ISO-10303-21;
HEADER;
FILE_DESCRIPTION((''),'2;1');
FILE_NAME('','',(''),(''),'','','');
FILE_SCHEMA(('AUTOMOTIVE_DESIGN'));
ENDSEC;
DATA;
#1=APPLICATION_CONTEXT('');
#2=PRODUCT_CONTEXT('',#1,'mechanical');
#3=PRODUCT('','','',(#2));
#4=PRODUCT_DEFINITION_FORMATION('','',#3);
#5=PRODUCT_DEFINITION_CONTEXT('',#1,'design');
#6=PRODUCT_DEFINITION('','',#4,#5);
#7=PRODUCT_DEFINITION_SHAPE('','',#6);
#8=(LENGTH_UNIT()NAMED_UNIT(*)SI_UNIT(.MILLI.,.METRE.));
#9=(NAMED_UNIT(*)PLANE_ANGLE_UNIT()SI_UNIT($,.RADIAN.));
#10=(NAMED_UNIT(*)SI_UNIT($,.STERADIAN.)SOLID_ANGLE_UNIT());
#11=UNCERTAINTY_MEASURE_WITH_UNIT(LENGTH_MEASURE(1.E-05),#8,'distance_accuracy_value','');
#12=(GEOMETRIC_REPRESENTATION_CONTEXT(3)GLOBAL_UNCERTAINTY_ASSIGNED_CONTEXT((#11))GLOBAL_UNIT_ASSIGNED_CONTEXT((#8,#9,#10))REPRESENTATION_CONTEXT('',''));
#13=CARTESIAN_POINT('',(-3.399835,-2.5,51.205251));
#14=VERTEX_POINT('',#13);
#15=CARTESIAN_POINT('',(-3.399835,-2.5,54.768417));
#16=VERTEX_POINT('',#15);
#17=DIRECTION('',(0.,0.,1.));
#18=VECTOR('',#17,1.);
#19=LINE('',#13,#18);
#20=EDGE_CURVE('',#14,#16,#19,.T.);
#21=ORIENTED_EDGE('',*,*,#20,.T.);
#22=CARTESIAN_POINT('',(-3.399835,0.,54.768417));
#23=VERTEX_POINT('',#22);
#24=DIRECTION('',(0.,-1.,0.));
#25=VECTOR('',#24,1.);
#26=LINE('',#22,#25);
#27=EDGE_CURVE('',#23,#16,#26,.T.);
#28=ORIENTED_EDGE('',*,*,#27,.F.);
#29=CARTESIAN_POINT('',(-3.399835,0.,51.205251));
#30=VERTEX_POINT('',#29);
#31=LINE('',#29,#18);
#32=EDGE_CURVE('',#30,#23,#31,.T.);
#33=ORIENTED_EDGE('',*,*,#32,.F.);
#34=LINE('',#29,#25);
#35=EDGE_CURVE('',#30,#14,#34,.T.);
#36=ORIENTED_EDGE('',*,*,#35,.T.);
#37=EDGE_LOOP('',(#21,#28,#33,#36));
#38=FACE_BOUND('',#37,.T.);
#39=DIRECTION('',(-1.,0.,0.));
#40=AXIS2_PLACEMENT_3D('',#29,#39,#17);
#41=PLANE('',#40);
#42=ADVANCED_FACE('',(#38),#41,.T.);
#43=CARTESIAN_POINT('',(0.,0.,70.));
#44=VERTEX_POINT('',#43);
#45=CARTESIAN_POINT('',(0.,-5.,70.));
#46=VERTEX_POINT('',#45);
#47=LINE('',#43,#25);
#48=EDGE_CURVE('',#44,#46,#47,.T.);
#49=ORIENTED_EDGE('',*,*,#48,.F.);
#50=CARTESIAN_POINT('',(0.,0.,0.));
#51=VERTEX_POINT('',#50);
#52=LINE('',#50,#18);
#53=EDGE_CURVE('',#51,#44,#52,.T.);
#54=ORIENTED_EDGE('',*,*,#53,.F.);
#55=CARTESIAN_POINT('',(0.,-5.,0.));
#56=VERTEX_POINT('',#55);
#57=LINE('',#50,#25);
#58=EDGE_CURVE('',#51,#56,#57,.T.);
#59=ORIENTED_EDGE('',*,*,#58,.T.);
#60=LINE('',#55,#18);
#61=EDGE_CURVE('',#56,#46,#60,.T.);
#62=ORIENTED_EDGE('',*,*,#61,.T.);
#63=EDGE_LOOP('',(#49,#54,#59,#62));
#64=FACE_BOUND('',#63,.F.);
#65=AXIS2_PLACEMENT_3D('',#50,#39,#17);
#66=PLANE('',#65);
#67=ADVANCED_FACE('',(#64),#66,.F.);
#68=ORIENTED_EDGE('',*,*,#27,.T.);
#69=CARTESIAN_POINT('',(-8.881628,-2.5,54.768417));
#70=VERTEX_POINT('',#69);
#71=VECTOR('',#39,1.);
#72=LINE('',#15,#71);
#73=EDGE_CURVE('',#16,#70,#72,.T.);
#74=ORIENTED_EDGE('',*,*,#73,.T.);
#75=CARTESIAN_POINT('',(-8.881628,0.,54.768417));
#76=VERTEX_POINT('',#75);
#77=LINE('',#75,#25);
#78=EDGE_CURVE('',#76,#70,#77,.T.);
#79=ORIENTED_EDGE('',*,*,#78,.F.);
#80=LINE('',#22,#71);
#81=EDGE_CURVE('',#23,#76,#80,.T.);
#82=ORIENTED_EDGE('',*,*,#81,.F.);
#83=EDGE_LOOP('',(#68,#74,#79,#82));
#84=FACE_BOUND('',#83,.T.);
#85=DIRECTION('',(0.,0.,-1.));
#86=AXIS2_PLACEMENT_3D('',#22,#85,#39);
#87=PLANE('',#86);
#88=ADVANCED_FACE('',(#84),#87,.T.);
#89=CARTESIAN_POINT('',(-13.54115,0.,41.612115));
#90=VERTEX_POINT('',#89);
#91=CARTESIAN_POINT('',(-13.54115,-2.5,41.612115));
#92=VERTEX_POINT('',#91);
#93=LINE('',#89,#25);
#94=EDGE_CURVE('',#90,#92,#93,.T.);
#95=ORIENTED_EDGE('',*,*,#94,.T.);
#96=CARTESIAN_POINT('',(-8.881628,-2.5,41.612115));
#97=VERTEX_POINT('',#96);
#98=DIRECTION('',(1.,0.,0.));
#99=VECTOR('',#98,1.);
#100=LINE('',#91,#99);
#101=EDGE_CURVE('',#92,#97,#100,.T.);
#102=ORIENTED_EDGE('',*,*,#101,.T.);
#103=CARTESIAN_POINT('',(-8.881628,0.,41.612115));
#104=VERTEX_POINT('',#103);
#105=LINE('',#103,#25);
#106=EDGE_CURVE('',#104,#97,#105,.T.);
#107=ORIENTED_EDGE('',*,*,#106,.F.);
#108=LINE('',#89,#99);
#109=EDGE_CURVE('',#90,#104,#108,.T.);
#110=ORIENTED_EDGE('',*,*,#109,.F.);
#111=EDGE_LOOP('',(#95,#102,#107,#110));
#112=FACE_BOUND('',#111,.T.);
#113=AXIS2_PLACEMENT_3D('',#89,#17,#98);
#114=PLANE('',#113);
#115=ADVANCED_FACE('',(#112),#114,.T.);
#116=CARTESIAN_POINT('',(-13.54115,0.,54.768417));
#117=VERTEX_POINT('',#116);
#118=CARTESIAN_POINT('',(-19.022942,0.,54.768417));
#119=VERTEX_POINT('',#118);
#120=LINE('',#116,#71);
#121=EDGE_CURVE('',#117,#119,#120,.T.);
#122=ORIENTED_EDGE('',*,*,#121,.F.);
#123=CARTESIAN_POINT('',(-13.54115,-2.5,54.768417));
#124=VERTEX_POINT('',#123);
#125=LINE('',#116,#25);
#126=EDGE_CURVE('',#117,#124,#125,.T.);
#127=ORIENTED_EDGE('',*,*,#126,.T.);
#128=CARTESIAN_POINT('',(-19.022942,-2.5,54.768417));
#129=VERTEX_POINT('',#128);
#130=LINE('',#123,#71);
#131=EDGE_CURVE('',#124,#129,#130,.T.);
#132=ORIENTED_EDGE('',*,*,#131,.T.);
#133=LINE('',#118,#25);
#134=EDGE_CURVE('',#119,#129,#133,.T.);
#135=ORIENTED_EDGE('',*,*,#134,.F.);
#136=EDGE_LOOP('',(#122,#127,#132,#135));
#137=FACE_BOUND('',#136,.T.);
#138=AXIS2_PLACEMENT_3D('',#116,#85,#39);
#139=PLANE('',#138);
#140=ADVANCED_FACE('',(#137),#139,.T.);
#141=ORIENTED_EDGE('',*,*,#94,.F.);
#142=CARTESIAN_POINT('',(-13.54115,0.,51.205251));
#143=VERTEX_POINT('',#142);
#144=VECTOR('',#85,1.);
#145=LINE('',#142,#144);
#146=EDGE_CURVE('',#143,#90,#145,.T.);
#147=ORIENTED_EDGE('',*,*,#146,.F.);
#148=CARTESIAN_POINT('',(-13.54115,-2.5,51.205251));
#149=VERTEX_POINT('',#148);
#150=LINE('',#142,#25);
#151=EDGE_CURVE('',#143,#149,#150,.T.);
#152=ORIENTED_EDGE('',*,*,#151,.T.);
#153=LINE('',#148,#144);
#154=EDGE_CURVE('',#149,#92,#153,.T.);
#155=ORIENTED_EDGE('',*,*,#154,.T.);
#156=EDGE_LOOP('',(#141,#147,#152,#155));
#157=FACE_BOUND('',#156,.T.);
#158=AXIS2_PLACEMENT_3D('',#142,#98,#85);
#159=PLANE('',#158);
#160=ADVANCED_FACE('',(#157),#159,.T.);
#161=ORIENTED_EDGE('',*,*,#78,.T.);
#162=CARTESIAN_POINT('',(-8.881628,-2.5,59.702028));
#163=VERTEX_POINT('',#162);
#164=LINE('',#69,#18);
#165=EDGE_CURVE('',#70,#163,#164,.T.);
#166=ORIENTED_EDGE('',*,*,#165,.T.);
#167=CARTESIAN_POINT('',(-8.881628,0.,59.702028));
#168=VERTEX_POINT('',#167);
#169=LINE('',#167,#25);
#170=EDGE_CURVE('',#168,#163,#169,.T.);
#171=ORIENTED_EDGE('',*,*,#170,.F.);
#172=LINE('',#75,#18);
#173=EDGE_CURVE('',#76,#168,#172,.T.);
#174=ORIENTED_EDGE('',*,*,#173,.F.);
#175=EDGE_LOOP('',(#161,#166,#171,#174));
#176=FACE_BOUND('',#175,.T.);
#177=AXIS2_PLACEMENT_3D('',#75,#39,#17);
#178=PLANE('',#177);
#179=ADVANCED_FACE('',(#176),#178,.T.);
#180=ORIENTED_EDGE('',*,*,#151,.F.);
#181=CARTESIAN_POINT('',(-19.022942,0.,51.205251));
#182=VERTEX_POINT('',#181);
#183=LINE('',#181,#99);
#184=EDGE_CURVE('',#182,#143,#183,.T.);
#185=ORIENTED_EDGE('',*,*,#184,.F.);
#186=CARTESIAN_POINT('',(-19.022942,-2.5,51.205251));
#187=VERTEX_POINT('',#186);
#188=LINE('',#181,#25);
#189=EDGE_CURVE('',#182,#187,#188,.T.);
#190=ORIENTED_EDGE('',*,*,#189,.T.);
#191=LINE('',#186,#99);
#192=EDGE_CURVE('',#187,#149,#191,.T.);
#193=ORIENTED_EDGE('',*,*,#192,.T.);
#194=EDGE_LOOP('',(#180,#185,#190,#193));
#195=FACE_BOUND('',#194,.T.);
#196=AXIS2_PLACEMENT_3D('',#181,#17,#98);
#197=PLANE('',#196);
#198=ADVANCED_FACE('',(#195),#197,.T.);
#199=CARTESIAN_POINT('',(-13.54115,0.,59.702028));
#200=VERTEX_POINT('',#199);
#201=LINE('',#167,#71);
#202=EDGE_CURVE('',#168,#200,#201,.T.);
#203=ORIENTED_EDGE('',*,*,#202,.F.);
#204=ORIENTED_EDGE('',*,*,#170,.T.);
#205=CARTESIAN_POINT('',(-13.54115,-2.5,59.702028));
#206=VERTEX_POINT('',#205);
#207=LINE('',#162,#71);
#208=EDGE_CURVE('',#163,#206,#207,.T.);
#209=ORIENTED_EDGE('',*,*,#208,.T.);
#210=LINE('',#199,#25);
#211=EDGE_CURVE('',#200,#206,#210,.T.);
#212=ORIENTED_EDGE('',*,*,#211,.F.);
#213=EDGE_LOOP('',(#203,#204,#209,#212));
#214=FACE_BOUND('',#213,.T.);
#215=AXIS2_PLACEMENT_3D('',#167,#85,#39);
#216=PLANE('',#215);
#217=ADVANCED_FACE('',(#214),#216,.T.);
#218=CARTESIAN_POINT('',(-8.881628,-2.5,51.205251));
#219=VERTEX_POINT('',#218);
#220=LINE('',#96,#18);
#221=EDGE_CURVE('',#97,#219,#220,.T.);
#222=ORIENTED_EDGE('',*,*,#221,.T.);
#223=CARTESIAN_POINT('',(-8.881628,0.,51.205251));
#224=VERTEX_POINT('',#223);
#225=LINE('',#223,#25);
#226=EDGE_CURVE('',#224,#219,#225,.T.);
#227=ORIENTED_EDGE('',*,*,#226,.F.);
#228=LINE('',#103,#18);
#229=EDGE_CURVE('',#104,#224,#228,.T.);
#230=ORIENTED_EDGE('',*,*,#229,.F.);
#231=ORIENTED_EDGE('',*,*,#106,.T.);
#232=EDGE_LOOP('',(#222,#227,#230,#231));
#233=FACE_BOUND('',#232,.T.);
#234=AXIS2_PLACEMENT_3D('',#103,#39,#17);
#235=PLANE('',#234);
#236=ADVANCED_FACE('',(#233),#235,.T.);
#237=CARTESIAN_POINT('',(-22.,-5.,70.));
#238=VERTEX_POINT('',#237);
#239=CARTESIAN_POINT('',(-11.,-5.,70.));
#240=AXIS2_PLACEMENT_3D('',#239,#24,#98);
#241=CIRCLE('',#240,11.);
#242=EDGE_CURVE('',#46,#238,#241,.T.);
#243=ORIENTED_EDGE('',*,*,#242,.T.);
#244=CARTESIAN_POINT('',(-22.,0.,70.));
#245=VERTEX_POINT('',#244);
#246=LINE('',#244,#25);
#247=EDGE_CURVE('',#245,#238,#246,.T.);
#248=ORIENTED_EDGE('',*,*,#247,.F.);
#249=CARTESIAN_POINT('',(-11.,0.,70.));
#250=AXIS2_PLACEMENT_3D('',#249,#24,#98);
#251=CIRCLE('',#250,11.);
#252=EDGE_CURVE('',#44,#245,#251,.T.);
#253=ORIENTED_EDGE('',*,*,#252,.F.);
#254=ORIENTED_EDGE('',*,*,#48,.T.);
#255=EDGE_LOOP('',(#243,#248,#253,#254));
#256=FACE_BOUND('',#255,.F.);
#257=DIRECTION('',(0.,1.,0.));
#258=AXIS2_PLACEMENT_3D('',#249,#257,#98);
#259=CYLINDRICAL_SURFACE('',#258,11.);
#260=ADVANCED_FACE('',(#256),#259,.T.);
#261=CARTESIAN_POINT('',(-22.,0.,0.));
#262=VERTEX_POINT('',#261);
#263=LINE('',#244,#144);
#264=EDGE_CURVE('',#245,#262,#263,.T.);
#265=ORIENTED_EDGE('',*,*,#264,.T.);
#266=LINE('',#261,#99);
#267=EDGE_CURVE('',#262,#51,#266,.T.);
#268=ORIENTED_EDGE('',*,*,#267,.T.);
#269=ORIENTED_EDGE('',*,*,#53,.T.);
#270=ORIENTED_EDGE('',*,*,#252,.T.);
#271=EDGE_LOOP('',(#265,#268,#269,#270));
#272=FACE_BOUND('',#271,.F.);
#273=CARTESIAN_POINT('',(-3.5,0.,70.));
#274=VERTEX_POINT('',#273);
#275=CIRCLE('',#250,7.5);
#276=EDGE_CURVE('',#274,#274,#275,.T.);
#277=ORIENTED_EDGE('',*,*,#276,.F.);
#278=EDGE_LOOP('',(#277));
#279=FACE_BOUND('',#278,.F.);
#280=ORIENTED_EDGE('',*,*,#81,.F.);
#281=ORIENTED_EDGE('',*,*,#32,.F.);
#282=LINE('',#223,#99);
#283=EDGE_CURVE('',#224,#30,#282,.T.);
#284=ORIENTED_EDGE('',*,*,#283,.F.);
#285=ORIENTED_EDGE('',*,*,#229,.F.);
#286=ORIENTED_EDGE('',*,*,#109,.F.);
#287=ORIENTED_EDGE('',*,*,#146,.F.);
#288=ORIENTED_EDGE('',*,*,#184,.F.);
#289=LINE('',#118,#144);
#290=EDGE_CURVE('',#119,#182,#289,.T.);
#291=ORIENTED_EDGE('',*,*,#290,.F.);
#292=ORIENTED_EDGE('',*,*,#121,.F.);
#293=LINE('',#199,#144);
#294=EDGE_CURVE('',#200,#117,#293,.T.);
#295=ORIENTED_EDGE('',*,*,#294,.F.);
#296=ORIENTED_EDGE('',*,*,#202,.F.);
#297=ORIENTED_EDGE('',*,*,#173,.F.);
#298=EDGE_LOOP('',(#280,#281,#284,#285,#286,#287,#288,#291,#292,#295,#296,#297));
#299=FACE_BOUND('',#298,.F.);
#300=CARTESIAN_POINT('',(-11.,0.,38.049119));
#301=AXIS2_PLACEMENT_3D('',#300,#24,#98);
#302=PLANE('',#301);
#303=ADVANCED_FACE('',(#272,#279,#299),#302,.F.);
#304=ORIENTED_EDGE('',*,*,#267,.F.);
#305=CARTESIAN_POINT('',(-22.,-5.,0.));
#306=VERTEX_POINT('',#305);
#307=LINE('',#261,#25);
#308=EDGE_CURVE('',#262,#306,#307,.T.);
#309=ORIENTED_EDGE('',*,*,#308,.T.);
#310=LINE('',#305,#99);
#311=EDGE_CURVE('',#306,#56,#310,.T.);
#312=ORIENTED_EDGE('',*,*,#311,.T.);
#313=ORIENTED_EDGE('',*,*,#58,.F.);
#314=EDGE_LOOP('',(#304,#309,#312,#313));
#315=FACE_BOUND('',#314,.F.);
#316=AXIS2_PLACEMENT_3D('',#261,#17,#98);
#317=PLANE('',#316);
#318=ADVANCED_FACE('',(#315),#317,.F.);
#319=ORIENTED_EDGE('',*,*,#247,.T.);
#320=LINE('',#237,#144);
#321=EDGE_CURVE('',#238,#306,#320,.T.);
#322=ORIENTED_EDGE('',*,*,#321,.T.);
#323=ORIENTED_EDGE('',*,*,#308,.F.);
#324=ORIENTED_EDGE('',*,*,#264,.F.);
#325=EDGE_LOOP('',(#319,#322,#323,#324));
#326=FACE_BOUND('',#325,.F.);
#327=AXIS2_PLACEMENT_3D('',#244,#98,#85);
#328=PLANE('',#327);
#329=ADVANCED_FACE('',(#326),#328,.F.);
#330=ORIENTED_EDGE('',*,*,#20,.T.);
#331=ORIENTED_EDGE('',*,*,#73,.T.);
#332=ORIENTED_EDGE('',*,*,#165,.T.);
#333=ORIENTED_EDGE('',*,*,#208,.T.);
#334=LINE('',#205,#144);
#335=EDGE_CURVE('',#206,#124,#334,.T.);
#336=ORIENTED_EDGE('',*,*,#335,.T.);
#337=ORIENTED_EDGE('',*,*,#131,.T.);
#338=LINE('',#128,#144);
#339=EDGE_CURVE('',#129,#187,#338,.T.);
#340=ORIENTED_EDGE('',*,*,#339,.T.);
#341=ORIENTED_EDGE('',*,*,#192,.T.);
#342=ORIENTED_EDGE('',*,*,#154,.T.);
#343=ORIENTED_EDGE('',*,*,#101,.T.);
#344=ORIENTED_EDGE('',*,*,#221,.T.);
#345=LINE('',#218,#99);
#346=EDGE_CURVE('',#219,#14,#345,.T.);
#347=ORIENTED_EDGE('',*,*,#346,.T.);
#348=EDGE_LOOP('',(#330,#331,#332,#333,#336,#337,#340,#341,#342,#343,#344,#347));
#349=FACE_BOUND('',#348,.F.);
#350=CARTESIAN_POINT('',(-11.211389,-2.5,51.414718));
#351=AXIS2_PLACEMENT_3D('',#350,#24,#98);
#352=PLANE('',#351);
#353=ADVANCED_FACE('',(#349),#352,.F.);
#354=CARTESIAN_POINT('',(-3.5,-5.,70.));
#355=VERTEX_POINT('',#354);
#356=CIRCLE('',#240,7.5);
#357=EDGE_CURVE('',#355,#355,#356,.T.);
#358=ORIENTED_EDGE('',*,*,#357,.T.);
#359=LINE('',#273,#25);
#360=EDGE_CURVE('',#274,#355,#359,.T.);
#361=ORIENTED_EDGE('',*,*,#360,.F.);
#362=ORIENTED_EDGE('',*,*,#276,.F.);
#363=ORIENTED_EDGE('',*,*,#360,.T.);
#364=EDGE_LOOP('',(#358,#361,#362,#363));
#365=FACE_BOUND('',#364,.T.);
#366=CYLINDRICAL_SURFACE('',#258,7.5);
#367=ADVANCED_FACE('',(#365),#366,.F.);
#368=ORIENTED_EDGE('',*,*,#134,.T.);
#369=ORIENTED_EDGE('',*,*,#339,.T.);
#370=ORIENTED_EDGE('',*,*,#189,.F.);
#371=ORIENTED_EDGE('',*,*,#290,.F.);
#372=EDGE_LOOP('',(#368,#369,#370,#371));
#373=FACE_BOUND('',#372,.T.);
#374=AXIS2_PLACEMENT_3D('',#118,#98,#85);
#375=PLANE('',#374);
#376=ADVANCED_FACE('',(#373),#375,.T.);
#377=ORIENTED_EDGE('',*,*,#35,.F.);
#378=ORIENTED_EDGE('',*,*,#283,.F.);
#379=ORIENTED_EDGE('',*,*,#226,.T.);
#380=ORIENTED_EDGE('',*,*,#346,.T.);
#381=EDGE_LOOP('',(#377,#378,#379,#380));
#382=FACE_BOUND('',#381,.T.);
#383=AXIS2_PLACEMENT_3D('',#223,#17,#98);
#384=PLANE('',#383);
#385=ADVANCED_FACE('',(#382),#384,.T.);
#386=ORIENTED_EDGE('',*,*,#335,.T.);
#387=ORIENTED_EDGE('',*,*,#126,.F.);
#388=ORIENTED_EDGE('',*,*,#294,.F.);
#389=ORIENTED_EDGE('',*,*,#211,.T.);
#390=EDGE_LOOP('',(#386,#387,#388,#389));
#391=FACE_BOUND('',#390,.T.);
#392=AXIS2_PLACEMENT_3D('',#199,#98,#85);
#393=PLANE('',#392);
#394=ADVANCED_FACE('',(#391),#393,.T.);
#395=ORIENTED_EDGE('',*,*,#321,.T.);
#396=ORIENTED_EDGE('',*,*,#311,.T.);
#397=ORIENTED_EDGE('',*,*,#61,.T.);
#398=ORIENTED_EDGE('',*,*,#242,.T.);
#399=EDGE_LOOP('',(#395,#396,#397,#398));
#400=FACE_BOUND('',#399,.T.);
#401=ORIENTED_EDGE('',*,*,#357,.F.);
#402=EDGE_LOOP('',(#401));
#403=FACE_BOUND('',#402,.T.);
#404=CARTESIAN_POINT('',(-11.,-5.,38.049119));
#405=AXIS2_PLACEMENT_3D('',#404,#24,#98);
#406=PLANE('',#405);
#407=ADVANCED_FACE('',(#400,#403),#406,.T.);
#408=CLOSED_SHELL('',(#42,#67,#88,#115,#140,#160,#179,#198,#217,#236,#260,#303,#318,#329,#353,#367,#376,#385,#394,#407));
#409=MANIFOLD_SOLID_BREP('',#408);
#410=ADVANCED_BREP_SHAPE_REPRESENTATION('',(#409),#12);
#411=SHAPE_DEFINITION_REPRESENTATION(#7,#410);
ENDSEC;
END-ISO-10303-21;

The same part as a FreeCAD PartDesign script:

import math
import FreeCAD as App
import Part
import Sketcher
from FreeCAD import Vector

doc = App.newDocument("Part")
body = doc.addObject("PartDesign::Body", "Body")

sketch1 = body.newObject("Sketcher::SketchObject", "Sketch")
sketch1.AttachmentSupport = (doc.getObject("XZ_Plane"), [""])
sketch1.MapMode = "FlatFace"
sketch1.addGeometry([
    Part.LineSegment(Vector(-22, 70, 0), Vector(-22, 0, 0)),
    Part.LineSegment(Vector(-22, 0, 0), Vector(0, 0, 0)),
    Part.LineSegment(Vector(0, 0, 0), Vector(0, 70, 0)),
    Part.ArcOfCircle(Part.Circle(Vector(-11, 70, 0), Vector(0, 0, 1), 11), math.radians(0), math.radians(180)),
    Part.Circle(Vector(-11, 70, 0), Vector(0, 0, 1), 8),
], False)
sketch1.addConstraint([
    Sketcher.Constraint("Coincident", 0, 2, 1, 1),
    Sketcher.Constraint("Coincident", 1, 2, 2, 1),
    Sketcher.Constraint("Tangent", 2, 2, 3, 1),
    Sketcher.Constraint("Tangent", 3, 2, 0, 1),
    Sketcher.Constraint("Vertical", 0),
    Sketcher.Constraint("Horizontal", 1),
    Sketcher.Constraint("Vertical", 2),
    Sketcher.Constraint("Coincident", 1, 2, -1, 1),
    Sketcher.Constraint("Coincident", 4, 3, 3, 3),
    Sketcher.Constraint("Diameter", 4, 15.0),
    Sketcher.Constraint("Radius", 3, 11.0),
    Sketcher.Constraint("DistanceY", 0, 2, 0, 1, 70.0),
])
pad1 = body.newObject("PartDesign::Pad", "Pad")
pad1.Profile = sketch1
pad1.Length = 5

sketch2 = body.newObject("Sketcher::SketchObject", "Sketch001")
sketch2.AttachmentSupport = (doc.getObject("XZ_Plane"), [""])
sketch2.MapMode = "FlatFace"
sketch2.addGeometry([
    Part.LineSegment(Vector(-8.9, 59.7, 0), Vector(-13.5, 59.7, 0)),
    Part.LineSegment(Vector(-13.5, 59.7, 0), Vector(-13.5, 54.8, 0)),
    Part.LineSegment(Vector(-13.5, 54.8, 0), Vector(-19, 54.8, 0)),
    Part.LineSegment(Vector(-19, 54.8, 0), Vector(-19, 51.2, 0)),
    Part.LineSegment(Vector(-19, 51.2, 0), Vector(-13.5, 51.2, 0)),
    Part.LineSegment(Vector(-13.5, 51.2, 0), Vector(-13.5, 41.6, 0)),
    Part.LineSegment(Vector(-13.5, 41.6, 0), Vector(-8.9, 41.6, 0)),
    Part.LineSegment(Vector(-8.9, 41.6, 0), Vector(-8.9, 51.2, 0)),
    Part.LineSegment(Vector(-8.9, 51.2, 0), Vector(-3.4, 51.2, 0)),
    Part.LineSegment(Vector(-3.4, 51.2, 0), Vector(-3.4, 54.8, 0)),
    Part.LineSegment(Vector(-3.4, 54.8, 0), Vector(-8.9, 54.8, 0)),
    Part.LineSegment(Vector(-8.9, 54.8, 0), Vector(-8.9, 59.7, 0)),
], False)
sketch2.addConstraint([
    Sketcher.Constraint("Coincident", 0, 2, 1, 1),
    Sketcher.Constraint("Coincident", 1, 2, 2, 1),
    Sketcher.Constraint("Coincident", 2, 2, 3, 1),
    Sketcher.Constraint("Coincident", 3, 2, 4, 1),
    Sketcher.Constraint("Coincident", 4, 2, 5, 1),
    Sketcher.Constraint("Coincident", 5, 2, 6, 1),
    Sketcher.Constraint("Coincident", 6, 2, 7, 1),
    Sketcher.Constraint("Coincident", 7, 2, 8, 1),
    Sketcher.Constraint("Coincident", 8, 2, 9, 1),
    Sketcher.Constraint("Coincident", 9, 2, 10, 1),
    Sketcher.Constraint("Coincident", 10, 2, 11, 1),
    Sketcher.Constraint("Coincident", 11, 2, 0, 1),
    Sketcher.Constraint("Horizontal", 0),
    Sketcher.Constraint("Vertical", 1),
    Sketcher.Constraint("Horizontal", 2),
    Sketcher.Constraint("Vertical", 3),
    Sketcher.Constraint("Horizontal", 4),
    Sketcher.Constraint("Vertical", 5),
    Sketcher.Constraint("Horizontal", 6),
    Sketcher.Constraint("Vertical", 7),
    Sketcher.Constraint("Horizontal", 8),
    Sketcher.Constraint("Vertical", 9),
    Sketcher.Constraint("Horizontal", 10),
    Sketcher.Constraint("Vertical", 11),
    Sketcher.Constraint("Horizontal", 4, 2, 7, 2),
    Sketcher.Constraint("Horizontal", 2, 2, 9, 2),
    Sketcher.Constraint("Vertical", 1, 2, 4, 2),
    Sketcher.Constraint("Vertical", 7, 2, 10, 2),
    Sketcher.Constraint("Equal", 4, 8),
    Sketcher.Constraint("DistanceY", 1, 2, 1, 1, 4.933611),
    Sketcher.Constraint("DistanceY", 5, 2, 1, 2, 13.156302),
    Sketcher.Constraint("DistanceX", 0, 2, 0, 1, 4.659522),
    Sketcher.Constraint("DistanceX", 2, 2, 2, 1, 5.481792),
    Sketcher.Constraint("DistanceY", 3, 2, 3, 1, 3.563166),
    Sketcher.Constraint("DistanceX", 0, 2, -1, 1, 13.54115),
    Sketcher.Constraint("DistanceY", -1, 1, 3, 2, 51.205251),
])
pocket1 = body.newObject("PartDesign::Pocket", "Pocket")
pocket1.Profile = sketch2
pocket1.Length = 2.5
pocket1.Reversed = True

doc.recompute()
